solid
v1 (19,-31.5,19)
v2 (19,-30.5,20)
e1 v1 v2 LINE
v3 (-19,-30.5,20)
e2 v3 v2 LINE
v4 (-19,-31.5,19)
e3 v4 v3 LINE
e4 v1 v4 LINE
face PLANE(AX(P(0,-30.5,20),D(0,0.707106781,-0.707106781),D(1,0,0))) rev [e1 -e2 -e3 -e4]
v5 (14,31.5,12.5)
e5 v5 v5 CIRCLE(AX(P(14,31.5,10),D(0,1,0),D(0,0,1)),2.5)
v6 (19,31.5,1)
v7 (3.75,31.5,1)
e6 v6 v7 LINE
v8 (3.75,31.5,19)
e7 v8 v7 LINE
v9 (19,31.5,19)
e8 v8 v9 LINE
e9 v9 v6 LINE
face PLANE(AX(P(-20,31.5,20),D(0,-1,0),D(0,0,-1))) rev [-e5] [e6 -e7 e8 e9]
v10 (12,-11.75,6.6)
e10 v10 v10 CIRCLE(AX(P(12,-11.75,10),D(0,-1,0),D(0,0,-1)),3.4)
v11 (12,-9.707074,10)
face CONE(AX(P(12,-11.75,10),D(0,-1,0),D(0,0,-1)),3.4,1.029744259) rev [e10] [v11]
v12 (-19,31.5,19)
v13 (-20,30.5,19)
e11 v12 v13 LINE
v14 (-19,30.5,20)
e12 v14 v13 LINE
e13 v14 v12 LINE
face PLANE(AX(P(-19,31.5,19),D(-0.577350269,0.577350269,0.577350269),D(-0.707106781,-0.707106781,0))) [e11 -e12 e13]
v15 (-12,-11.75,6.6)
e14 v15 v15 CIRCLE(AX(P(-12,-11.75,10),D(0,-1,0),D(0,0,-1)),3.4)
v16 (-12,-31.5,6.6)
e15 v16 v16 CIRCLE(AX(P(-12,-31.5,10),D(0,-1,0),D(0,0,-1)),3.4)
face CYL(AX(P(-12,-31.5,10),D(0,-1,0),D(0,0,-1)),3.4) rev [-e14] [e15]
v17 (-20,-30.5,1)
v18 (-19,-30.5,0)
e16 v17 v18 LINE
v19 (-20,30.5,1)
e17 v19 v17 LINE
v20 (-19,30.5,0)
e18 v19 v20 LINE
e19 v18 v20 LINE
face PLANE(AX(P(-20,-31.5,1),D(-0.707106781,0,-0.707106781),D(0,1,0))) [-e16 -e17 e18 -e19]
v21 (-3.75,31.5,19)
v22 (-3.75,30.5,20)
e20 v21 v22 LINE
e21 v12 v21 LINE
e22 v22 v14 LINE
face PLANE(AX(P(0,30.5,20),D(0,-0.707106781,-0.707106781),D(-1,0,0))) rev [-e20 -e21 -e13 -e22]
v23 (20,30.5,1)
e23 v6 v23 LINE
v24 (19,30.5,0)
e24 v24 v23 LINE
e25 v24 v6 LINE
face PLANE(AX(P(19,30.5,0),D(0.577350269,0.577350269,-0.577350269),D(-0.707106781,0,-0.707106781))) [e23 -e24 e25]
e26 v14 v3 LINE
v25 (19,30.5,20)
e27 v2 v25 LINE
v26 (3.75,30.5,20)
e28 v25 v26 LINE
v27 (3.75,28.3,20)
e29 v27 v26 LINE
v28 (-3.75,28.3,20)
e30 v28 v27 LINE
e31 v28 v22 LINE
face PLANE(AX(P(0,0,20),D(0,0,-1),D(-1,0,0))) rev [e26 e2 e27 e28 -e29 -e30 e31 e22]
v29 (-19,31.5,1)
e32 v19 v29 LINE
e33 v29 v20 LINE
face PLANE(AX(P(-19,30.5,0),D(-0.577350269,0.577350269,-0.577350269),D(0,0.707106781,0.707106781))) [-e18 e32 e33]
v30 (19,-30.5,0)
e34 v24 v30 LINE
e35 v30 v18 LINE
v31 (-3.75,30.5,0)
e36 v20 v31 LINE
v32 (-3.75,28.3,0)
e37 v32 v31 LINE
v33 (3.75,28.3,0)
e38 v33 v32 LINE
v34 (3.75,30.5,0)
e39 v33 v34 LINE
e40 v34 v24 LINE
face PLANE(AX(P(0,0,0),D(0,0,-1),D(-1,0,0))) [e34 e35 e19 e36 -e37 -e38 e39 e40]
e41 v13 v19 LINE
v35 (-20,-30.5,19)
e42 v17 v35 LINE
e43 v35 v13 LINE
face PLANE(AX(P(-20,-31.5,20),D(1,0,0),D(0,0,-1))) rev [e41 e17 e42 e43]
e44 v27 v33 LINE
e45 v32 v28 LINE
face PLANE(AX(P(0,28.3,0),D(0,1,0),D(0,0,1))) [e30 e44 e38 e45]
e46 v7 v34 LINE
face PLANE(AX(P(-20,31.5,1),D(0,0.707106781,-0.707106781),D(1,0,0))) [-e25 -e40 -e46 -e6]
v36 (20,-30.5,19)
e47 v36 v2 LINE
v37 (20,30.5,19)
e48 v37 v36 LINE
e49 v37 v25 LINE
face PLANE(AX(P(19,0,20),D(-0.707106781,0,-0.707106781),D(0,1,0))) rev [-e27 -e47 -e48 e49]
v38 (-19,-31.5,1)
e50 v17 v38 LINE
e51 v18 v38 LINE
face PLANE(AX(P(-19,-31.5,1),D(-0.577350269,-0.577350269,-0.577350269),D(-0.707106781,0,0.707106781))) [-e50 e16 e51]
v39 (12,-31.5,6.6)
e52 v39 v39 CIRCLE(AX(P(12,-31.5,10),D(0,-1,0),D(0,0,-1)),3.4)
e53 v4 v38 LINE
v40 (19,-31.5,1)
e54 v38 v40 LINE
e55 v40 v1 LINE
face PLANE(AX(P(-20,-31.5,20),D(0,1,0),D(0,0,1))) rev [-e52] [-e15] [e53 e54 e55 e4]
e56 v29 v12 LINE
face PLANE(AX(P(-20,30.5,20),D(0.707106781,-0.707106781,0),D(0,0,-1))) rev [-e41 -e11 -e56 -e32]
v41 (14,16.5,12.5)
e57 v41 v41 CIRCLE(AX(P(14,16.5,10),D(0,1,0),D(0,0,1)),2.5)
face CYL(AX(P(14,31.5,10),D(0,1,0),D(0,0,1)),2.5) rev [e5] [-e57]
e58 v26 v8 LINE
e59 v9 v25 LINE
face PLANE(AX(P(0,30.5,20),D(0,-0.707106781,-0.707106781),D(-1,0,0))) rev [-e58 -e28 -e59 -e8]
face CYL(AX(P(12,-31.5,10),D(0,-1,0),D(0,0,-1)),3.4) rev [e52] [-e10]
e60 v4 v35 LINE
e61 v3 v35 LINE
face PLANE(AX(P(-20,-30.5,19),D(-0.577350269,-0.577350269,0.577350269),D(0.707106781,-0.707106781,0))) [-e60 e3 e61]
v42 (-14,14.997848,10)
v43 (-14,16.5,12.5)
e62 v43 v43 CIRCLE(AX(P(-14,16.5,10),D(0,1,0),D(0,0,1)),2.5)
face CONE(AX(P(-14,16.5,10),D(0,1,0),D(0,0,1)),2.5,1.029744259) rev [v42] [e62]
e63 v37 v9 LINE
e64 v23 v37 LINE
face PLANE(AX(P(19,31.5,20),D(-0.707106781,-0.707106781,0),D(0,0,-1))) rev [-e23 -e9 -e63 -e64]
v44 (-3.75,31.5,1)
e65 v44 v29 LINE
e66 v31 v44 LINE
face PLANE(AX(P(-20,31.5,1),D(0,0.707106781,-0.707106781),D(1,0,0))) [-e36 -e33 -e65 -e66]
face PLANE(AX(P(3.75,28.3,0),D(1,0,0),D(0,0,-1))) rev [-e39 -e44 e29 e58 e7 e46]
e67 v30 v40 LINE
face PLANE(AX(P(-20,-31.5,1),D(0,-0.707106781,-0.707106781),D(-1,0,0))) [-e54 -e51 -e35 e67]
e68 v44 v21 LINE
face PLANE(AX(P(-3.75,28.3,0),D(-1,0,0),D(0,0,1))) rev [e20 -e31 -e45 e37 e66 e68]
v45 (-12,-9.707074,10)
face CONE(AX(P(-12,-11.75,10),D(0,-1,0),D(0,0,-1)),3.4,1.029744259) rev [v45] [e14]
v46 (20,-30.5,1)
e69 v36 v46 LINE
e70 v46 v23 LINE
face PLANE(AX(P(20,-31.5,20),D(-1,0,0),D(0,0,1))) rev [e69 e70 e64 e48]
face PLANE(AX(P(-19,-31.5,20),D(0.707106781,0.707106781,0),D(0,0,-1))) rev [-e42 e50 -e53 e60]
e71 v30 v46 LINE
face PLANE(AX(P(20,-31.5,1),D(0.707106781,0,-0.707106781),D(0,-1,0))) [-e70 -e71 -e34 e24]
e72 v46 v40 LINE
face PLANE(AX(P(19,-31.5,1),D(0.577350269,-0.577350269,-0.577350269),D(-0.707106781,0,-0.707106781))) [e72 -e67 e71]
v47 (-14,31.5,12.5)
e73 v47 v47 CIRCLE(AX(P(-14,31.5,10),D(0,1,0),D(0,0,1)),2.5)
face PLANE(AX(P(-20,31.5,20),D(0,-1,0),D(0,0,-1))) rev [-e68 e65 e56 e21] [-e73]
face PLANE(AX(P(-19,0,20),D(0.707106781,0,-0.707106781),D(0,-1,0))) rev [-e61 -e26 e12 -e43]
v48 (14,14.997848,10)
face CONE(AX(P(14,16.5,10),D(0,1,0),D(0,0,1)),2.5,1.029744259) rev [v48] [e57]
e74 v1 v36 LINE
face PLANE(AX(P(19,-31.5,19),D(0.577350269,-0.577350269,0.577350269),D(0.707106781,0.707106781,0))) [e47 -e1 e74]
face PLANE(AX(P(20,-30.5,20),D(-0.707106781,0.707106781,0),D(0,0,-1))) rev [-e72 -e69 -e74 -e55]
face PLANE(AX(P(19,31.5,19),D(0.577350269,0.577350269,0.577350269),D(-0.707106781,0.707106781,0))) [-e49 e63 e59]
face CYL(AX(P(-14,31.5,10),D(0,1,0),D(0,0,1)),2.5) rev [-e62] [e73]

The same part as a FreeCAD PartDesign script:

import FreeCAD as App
import Part
import Sketcher
Q = App.Units.Quantity


def edges_at(feature, points):
    """Names of the edges that pass closest to the given points."""
    edges = feature.Shape.Edges
    near = lambda p: min(range(len(edges)), key=lambda i: edges[i].distToShape(Part.Vertex(*p))[0])
    return sorted({f"Edge{near(p) + 1}" for p in points})

doc = App.newDocument("Part")
params = doc.addObject("Spreadsheet::Sheet", "Params")
for row, (alias, value) in enumerate([
    ("sketch1_width", "40 mm"),
    ("sketch1_height", "63 mm"),
    ("pad1_length", "20 mm"),
    ("sketch2_height", "20 mm"),
    ("sketch2_width", "7.5 mm"),
    ("pocket1_length", "3.2 mm"),
    ("sketch3_diameter", "6.8 mm"),
    ("hole_diameter", "6.8 mm"),
    ("hole_depth", "19.75 mm"),
    ("sketch4_diameter", "5 mm"),
    ("hole2_diameter", "5 mm"),
    ("hole2_depth", "15 mm"),
    ("chamfer_size", "1 mm"),
], start=1):
    params.set(f"A{row}", alias)
    params.set(f"B{row}", "=" + value)
    params.setAlias(f"B{row}", alias)

body = doc.addObject("PartDesign::Body", "Body")

# Sketch on XY plane
sketch1 = body.newObject("Sketcher::SketchObject", "Sketch")
sketch1.AttachmentSupport = (doc.getObject("XY_Plane"), [""])
sketch1.MapMode = "FlatFace"
sketch1.addGeometry(Part.LineSegment(App.Vector(-20, 32, 0), App.Vector(-20, -32, 0)), False)
sketch1.addGeometry(Part.LineSegment(App.Vector(-20, -32, 0), App.Vector(20, -32, 0)), False)
sketch1.addGeometry(Part.LineSegment(App.Vector(20, -32, 0), App.Vector(20, 32, 0)), False)
sketch1.addGeometry(Part.LineSegment(App.Vector(20, 32, 0), App.Vector(-20, 32, 0)), False)
sketch1.addConstraint(Sketcher.Constraint("Coincident", 0, 2, 1, 1))
sketch1.addConstraint(Sketcher.Constraint("Coincident", 1, 2, 2, 1))
sketch1.addConstraint(Sketcher.Constraint("Coincident", 2, 2, 3, 1))
sketch1.addConstraint(Sketcher.Constraint("Coincident", 3, 2, 0, 1))
sketch1.addConstraint(Sketcher.Constraint("Vertical", 0))
sketch1.addConstraint(Sketcher.Constraint("Horizontal", 1))
sketch1.addConstraint(Sketcher.Constraint("Vertical", 2))
sketch1.addConstraint(Sketcher.Constraint("Horizontal", 3))
sketch1.addConstraint(Sketcher.Constraint("Symmetric", 0, 2, 2, 2, -1, 1))
sketch1.addConstraint(Sketcher.Constraint("DistanceX", 1, 1, 1, 2, Q("40 mm")))
sketch1.addConstraint(Sketcher.Constraint("DistanceY", 0, 2, 0, 1, Q("63 mm")))
sketch1.setExpression("Constraints[9]", "Params.sketch1_width")
sketch1.setExpression("Constraints[10]", "Params.sketch1_height")
pad1 = body.newObject("PartDesign::Pad", "Pad")
pad1.Profile = sketch1
pad1.setExpression("Length", "Params.pad1_length")

# Sketch on XZ plane
sketch2 = body.newObject("Sketcher::SketchObject", "Sketch001")
sketch2.AttachmentSupport = (doc.getObject("XZ_Plane"), [""])
sketch2.MapMode = "FlatFace"
sketch2.AttachmentOffset = App.Placement(App.Vector(0, 0, -31.5), App.Rotation())
sketch2.addGeometry(Part.LineSegment(App.Vector(-4, 0, 0), App.Vector(-4, 20, 0)), False)
sketch2.addGeometry(Part.LineSegment(App.Vector(-4, 20, 0), App.Vector(4, 20, 0)), False)
sketch2.addGeometry(Part.LineSegment(App.Vector(4, 20, 0), App.Vector(4, 0, 0)), False)
sketch2.addGeometry(Part.LineSegment(App.Vector(4, 0, 0), App.Vector(-4, 0, 0)), False)
sketch2.addConstraint(Sketcher.Constraint("Coincident", 0, 2, 1, 1))
sketch2.addConstraint(Sketcher.Constraint("Coincident", 1, 2, 2, 1))
sketch2.addConstraint(Sketcher.Constraint("Coincident", 2, 2, 3, 1))
sketch2.addConstraint(Sketcher.Constraint("Coincident", 3, 2, 0, 1))
sketch2.addConstraint(Sketcher.Constraint("Vertical", 0))
sketch2.addConstraint(Sketcher.Constraint("Horizontal", 1))
sketch2.addConstraint(Sketcher.Constraint("Vertical", 2))
sketch2.addConstraint(Sketcher.Constraint("Horizontal", 3))
sketch2.addConstraint(Sketcher.Constraint("Symmetric", 2, 2, 3, 2, -1, 1))
sketch2.addConstraint(Sketcher.Constraint("DistanceY", 0, 1, 0, 2, Q("20 mm")))
sketch2.addConstraint(Sketcher.Constraint("DistanceX", 1, 1, 1, 2, Q("7.5 mm")))
sketch2.setExpression("Constraints[9]", "Params.sketch2_height")
sketch2.setExpression("Constraints[10]", "Params.sketch2_width")
pocket1 = body.newObject("PartDesign::Pocket", "Pocket")
pocket1.Profile = sketch2
pocket1.setExpression("Length", "Params.pocket1_length")
pocket1.Reversed = True

# Sketch on XZ plane
sketch3 = body.newObject("Sketcher::SketchObject", "Sketch002")
sketch3.AttachmentSupport = (doc.getObject("XZ_Plane"), [""])
sketch3.MapMode = "FlatFace"
sketch3.AttachmentOffset = App.Placement(App.Vector(0, 0, 31.5), App.Rotation())
sketch3.addGeometry(Part.Circle(App.Vector(12, 10, 0), App.Vector(0, 0, 1), 3.4), False)
sketch3.addGeometry(Part.Circle(App.Vector(-12, 10, 0), App.Vector(0, 0, 1), 3.4), False)
sketch3.addConstraint(Sketcher.Constraint("Equal", 0, 1))
sketch3.addConstraint(Sketcher.Constraint("Symmetric", 0, 3, 1, 3, -2))
sketch3.addConstraint(Sketcher.Constraint("Diameter", 0, Q("6.8 mm")))
sketch3.addConstraint(Sketcher.Constraint("DistanceX", -1, 1, 0, 3, Q("12 mm")))
sketch3.addConstraint(Sketcher.Constraint("DistanceY", -1, 1, 0, 3, Q("10 mm")))
sketch3.setExpression("Constraints[2]", "Params.sketch3_diameter")
doc.recompute()
hole = body.newObject("PartDesign::Hole", "Hole")
hole.Profile = sketch3
hole.ThreadType = "None"
hole.setExpression("Diameter", "Params.hole_diameter")
hole.DepthType = "Dimension"
hole.setExpression("Depth", "Params.hole_depth")
hole.DrillPoint = "Angled"
hole.DrillPointAngle = 118

# Sketch on XZ plane
sketch4 = body.newObject("Sketcher::SketchObject", "Sketch003")
sketch4.AttachmentSupport = (doc.getObject("XZ_Plane"), [""])
sketch4.MapMode = "FlatFace"
sketch4.AttachmentOffset = App.Placement(App.Vector(0, 0, -31.5), App.Rotation())
sketch4.addGeometry(Part.Circle(App.Vector(-14, 10, 0), App.Vector(0, 0, 1), 2.5), False)
sketch4.addGeometry(Part.Circle(App.Vector(14, 10, 0), App.Vector(0, 0, 1), 2.5), False)
sketch4.addConstraint(Sketcher.Constraint("Equal", 0, 1))
sketch4.addConstraint(Sketcher.Constraint("Symmetric", 0, 3, 1, 3, -2))
sketch4.addConstraint(Sketcher.Constraint("Diameter", 0, Q("5 mm")))
sketch4.addConstraint(Sketcher.Constraint("DistanceX", 0, 3, -1, 1, Q("14 mm")))
sketch4.addConstraint(Sketcher.Constraint("DistanceY", -1, 1, 0, 3, Q("10 mm")))
sketch4.setExpression("Constraints[2]", "Params.sketch4_diameter")
doc.recompute()
hole2 = body.newObject("PartDesign::Hole", "Hole001")
hole2.Profile = sketch4
hole2.ThreadType = "None"
hole2.setExpression("Diameter", "Params.hole2_diameter")
hole2.DepthType = "Dimension"
hole2.setExpression("Depth", "Params.hole2_depth")
hole2.DrillPoint = "Angled"
hole2.DrillPointAngle = 118
hole2.Reversed = True
doc.recompute()

chamfer = body.newObject("PartDesign::Chamfer", "Chamfer")
chamfer.Base = (hole2, edges_at(hole2, [
    (-20, 0, 20),
    (-11.875, 31.5, 0),
    (0, -31.5, 20),
    (-11.875, 31.5, 20),
    (20, 0, 20),
    (0, -31.5, 0),
    (-20, 0, 0),
    (11.875, 31.5, 0),
    (20, 0, 0),
    (20, -31.5, 10),
    (-20, -31.5, 10),
    (-20, 31.5, 10),
    (20, 31.5, 10),
    (11.875, 31.5, 20),
]))
chamfer.setExpression("Size", "Params.chamfer_size")

doc.recompute()
